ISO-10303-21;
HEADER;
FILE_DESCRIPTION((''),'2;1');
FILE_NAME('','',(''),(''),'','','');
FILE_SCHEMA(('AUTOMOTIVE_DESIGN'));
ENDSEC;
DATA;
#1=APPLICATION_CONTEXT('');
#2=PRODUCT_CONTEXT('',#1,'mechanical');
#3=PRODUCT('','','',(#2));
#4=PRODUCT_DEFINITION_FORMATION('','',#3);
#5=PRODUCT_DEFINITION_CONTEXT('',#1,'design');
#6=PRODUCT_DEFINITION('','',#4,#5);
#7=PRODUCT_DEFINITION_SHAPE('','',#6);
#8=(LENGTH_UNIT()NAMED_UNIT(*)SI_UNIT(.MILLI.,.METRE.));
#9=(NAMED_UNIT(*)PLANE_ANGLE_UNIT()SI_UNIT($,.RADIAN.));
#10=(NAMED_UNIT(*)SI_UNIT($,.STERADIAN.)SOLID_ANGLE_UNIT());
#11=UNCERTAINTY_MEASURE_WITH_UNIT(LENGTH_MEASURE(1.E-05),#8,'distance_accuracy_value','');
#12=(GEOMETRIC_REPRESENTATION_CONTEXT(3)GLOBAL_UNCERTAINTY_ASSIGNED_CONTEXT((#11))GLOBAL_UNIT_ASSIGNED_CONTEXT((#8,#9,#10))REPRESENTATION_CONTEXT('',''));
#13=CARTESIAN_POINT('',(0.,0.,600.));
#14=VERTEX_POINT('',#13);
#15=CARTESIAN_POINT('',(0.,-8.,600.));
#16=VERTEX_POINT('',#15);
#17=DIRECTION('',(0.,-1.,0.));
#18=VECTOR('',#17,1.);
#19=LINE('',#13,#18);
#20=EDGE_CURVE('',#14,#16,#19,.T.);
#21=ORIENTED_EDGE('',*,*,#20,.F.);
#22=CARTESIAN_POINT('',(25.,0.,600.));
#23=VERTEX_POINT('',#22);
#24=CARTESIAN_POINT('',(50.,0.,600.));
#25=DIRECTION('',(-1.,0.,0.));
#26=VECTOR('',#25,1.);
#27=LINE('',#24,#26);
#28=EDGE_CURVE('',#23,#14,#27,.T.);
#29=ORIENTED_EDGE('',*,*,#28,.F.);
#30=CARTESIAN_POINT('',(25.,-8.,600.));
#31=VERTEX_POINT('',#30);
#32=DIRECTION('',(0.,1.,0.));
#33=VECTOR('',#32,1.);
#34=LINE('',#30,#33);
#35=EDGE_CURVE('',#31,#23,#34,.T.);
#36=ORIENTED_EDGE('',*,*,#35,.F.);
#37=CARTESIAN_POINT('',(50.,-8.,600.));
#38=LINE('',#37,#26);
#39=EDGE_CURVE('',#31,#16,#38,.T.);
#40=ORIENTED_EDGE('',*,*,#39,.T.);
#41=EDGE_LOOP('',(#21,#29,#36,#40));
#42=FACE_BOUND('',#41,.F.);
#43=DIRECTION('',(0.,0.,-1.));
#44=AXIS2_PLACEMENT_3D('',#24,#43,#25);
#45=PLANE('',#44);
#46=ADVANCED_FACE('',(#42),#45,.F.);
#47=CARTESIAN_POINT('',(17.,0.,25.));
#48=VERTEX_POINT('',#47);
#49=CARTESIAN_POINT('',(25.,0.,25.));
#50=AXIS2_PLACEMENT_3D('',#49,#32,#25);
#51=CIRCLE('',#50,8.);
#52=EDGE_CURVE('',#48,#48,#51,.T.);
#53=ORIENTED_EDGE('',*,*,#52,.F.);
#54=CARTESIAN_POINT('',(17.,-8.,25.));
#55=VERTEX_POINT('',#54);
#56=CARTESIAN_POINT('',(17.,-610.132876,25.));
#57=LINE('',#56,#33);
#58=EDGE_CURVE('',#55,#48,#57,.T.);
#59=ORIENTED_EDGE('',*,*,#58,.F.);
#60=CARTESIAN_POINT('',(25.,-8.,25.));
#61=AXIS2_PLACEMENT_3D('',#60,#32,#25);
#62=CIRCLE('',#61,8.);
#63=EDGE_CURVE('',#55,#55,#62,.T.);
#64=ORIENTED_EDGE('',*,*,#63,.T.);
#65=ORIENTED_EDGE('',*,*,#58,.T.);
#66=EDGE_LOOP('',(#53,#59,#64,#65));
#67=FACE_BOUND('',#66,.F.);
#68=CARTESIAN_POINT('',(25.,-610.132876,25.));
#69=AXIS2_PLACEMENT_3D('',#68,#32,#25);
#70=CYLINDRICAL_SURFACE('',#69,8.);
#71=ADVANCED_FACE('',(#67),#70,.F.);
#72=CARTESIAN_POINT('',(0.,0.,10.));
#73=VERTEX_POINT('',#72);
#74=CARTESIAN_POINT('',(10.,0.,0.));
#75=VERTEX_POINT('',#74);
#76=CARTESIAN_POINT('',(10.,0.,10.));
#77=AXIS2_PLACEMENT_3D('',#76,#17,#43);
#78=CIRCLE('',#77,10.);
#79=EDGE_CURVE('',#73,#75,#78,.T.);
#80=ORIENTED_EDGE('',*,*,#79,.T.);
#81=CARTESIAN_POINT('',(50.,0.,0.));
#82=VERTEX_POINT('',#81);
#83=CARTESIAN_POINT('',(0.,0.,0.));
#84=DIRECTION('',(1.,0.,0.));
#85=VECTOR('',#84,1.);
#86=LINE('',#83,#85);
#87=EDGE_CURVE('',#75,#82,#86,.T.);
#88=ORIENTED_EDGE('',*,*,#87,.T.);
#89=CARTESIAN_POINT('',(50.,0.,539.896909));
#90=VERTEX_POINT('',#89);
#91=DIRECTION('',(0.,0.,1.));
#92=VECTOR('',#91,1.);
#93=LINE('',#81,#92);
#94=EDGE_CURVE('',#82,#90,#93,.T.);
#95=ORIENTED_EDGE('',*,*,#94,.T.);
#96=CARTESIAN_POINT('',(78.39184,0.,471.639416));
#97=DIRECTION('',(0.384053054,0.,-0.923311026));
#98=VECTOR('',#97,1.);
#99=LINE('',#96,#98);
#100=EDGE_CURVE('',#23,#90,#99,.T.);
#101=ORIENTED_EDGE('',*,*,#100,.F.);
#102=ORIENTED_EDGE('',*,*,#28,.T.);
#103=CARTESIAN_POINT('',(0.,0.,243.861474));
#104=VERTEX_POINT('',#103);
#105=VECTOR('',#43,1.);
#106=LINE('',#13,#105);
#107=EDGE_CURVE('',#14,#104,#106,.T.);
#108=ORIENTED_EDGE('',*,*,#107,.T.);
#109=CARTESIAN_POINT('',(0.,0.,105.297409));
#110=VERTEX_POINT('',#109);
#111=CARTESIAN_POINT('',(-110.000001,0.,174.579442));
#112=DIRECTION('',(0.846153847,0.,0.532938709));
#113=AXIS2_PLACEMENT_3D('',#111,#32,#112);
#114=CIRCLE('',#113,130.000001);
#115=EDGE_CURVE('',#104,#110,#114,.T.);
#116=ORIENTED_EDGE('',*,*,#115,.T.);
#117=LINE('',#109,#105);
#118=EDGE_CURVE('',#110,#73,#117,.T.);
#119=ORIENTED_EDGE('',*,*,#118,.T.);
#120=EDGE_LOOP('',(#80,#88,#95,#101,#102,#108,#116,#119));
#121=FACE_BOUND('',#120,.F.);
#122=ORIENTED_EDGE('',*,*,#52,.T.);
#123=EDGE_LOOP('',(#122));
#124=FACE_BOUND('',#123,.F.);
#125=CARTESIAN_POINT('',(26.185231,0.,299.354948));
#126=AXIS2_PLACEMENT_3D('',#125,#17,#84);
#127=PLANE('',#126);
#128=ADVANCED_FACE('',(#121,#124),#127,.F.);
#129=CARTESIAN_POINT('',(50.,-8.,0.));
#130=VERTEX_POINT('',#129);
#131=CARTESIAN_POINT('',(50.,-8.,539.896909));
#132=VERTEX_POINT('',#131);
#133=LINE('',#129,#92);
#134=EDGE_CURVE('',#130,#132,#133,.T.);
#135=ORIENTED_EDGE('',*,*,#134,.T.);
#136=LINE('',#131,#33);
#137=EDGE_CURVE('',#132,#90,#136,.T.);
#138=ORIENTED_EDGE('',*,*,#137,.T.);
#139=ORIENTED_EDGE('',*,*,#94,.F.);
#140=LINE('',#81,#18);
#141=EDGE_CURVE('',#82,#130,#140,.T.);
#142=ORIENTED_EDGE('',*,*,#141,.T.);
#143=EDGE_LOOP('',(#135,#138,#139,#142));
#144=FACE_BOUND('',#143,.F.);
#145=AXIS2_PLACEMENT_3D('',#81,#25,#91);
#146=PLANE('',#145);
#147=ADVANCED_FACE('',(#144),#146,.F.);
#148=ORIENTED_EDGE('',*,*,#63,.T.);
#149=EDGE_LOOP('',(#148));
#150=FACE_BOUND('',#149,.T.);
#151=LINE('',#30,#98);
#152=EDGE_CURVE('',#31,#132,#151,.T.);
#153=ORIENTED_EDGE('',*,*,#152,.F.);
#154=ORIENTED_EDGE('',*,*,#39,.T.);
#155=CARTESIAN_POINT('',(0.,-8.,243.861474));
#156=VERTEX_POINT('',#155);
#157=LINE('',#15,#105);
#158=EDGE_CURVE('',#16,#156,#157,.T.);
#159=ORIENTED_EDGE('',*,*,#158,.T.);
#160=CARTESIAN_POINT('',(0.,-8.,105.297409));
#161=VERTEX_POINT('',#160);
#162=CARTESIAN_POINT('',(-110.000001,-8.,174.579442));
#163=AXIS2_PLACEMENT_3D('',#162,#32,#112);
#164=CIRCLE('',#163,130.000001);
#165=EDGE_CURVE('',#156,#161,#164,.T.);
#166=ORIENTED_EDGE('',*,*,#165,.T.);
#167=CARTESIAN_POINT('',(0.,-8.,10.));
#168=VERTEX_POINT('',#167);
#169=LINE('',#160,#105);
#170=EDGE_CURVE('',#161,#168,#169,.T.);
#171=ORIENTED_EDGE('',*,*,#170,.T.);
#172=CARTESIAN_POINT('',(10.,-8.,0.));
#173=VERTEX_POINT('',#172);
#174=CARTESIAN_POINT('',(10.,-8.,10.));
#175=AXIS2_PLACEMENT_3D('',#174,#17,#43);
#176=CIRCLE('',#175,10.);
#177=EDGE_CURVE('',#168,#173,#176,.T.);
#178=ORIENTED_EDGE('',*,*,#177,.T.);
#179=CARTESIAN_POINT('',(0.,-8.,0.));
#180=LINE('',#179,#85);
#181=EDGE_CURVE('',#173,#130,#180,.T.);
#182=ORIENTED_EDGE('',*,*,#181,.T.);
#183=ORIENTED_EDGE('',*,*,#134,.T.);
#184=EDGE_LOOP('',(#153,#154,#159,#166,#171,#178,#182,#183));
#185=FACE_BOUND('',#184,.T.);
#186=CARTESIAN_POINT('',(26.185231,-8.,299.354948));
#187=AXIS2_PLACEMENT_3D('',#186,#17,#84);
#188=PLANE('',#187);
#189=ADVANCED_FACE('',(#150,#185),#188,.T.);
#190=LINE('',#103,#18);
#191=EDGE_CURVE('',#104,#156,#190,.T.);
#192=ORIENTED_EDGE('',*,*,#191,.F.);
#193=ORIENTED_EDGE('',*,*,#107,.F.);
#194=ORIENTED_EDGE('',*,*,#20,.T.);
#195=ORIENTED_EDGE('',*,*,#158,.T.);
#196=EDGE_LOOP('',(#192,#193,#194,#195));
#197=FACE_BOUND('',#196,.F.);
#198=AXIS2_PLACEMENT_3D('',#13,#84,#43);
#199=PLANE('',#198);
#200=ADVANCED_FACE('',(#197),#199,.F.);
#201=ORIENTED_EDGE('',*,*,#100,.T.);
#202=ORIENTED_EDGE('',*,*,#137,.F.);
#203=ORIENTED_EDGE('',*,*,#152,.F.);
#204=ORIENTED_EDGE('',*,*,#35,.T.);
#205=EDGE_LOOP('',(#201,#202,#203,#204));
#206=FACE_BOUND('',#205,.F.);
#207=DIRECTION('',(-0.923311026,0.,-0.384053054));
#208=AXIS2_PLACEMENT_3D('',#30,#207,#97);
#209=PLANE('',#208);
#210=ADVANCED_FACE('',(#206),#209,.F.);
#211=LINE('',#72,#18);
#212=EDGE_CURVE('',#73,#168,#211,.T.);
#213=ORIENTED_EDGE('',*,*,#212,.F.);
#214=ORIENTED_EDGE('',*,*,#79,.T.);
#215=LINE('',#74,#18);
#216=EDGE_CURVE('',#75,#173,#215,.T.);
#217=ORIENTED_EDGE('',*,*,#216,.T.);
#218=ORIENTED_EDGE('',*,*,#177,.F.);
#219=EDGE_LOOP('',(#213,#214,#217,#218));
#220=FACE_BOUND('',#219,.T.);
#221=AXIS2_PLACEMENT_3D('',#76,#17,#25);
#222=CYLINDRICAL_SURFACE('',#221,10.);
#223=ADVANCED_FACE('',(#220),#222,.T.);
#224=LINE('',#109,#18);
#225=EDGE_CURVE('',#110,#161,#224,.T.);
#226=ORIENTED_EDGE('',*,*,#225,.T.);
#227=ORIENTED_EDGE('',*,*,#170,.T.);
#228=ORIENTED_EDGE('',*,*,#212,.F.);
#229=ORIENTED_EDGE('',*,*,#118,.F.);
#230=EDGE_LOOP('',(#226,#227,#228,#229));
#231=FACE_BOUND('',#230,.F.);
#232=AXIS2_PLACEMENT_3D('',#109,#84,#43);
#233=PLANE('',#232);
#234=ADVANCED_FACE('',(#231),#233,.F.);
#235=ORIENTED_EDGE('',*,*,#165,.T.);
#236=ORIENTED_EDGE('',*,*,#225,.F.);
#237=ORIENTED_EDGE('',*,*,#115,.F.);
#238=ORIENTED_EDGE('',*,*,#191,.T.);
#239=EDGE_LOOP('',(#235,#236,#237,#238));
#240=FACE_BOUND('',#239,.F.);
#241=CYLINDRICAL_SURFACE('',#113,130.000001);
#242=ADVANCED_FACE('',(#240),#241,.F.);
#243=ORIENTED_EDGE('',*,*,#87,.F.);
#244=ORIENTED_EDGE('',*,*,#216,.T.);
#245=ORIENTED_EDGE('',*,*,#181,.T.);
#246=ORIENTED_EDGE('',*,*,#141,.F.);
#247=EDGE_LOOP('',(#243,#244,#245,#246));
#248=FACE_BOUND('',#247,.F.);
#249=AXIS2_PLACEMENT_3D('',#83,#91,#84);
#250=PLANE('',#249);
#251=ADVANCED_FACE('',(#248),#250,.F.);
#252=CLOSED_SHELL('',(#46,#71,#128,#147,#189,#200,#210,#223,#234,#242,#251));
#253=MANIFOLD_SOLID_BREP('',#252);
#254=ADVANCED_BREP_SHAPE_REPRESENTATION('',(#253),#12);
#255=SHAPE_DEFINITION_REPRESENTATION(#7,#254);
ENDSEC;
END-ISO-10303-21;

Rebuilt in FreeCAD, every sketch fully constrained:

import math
import FreeCAD as App
import Part
import Sketcher

V = App.Vector
Q = App.Units.Quantity


def edges_at(feature, points):
    """Names of the edges that pass closest to the given points."""
    edges = feature.Shape.Edges
    near = lambda p: min(range(len(edges)), key=lambda i: edges[i].distToShape(Part.Vertex(*p))[0])
    return sorted({f"Edge{near(p) + 1}" for p in points})

doc = App.newDocument("Part")
body = doc.addObject("PartDesign::Body", "Body")

sketch1 = body.newObject("Sketcher::SketchObject", "Sketch")
sketch1.AttachmentSupport = (doc.getObject("XZ_Plane"), [""])
sketch1.MapMode = "FlatFace"
sketch1.addGeometry(Part.LineSegment(V(0, 105, 0), V(0, 0, 0)), False)
sketch1.addGeometry(Part.LineSegment(V(0, 0, 0), V(50, 0, 0)), False)
sketch1.addGeometry(Part.LineSegment(V(50, 0, 0), V(50, 600, 0)), False)
sketch1.addGeometry(Part.LineSegment(V(50, 600, 0), V(0, 600, 0)), False)
sketch1.addGeometry(Part.LineSegment(V(0, 600, 0), V(0, 244, 0)), False)
sketch1.addGeometry(Part.ArcOfCircle(Part.Circle(V(-110, 175, 0), V(0, 0, 1), 130), math.radians(-32), math.radians(32)), False)
sketch1.addConstraint(Sketcher.Constraint("Coincident", 0, 2, 1, 1))
sketch1.addConstraint(Sketcher.Constraint("Coincident", 1, 2, 2, 1))
sketch1.addConstraint(Sketcher.Constraint("Coincident", 2, 2, 3, 1))
sketch1.addConstraint(Sketcher.Constraint("Coincident", 3, 2, 4, 1))
sketch1.addConstraint(Sketcher.Constraint("Coincident", 4, 2, 5, 2))
sketch1.addConstraint(Sketcher.Constraint("Coincident", 5, 1, 0, 1))
sketch1.addConstraint(Sketcher.Constraint("Vertical", 0))
sketch1.addConstraint(Sketcher.Constraint("Horizontal", 1))
sketch1.addConstraint(Sketcher.Constraint("Vertical", 2))
sketch1.addConstraint(Sketcher.Constraint("Horizontal", 3))
sketch1.addConstraint(Sketcher.Constraint("Vertical", 4))
sketch1.addConstraint(Sketcher.Constraint("Coincident", 0, 2, -1, 1))
sketch1.addConstraint(Sketcher.Constraint("PointOnObject", 3, 2, -2))
sketch1.addConstraint(Sketcher.Constraint("Radius", 5, Q("130.000001 mm")))
sketch1.addConstraint(Sketcher.Constraint("DistanceX", 1, 1, 1, 2, Q("50 mm")))
sketch1.addConstraint(Sketcher.Constraint("DistanceY", 2, 1, 2, 2, Q("600 mm")))
sketch1.addConstraint(Sketcher.Constraint("DistanceX", 5, 3, -1, 1, Q("110.000001 mm")))
sketch1.addConstraint(Sketcher.Constraint("DistanceY", 0, 2, 0, 1, Q("105.297409 mm")))
pad1 = body.newObject("PartDesign::Pad", "Pad")
pad1.Profile = sketch1
pad1.Length = 8

sketch2 = body.newObject("Sketcher::SketchObject", "Sketch001")
sketch2.AttachmentSupport = (doc.getObject("XZ_Plane"), [""])
sketch2.MapMode = "FlatFace"
sketch2.AttachmentOffset = App.Placement(V(0, 0, 8), App.Rotation())
sketch2.addGeometry(Part.Circle(V(25, 25, 0), V(0, 0, 1), 8), False)
sketch2.addConstraint(Sketcher.Constraint("Diameter", 0, Q("16 mm")))
sketch2.addConstraint(Sketcher.Constraint("DistanceX", -1, 1, 0, 3, Q("25 mm")))
sketch2.addConstraint(Sketcher.Constraint("DistanceY", -1, 1, 0, 3, Q("25 mm")))
doc.recompute()
hole = body.newObject("PartDesign::Hole", "Hole")
hole.Profile = sketch2
hole.ThreadType = "None"
hole.Diameter = 16
hole.DepthType = "ThroughAll"
doc.recompute()

fillet = body.newObject("PartDesign::Fillet", "Fillet")
fillet.Base = (hole, edges_at(hole, [(0, -4, 0)]))
fillet.Radius = 10

sketch3 = body.newObject("Sketcher::SketchObject", "Sketch002")
sketch3.AttachmentSupport = (doc.getObject("XZ_Plane"), [""])
sketch3.MapMode = "FlatFace"
sketch3.AttachmentOffset = App.Placement(V(0, 0, 8), App.Rotation())
sketch3.addGeometry(Part.LineSegment(V(50, 600, 0), V(25, 600, 0)), False)
sketch3.addGeometry(Part.LineSegment(V(25, 600, 0), V(50, 540, 0)), False)
sketch3.addGeometry(Part.LineSegment(V(50, 540, 0), V(50, 600, 0)), False)
sketch3.addConstraint(Sketcher.Constraint("Coincident", 0, 2, 1, 1))
sketch3.addConstraint(Sketcher.Constraint("Coincident", 1, 2, 2, 1))
sketch3.addConstraint(Sketcher.Constraint("Coincident", 2, 2, 0, 1))
sketch3.addConstraint(Sketcher.Constraint("Horizontal", 0))
sketch3.addConstraint(Sketcher.Constraint("Vertical", 2))
sketch3.addConstraint(Sketcher.Constraint("DistanceX", 0, 2, 0, 1, Q("25 mm")))
sketch3.addConstraint(Sketcher.Constraint("DistanceX", -1, 1, 0, 2, Q("25 mm")))
sketch3.addConstraint(Sketcher.Constraint("DistanceY", -1, 1, 0, 2, Q("600 mm")))
sketch3.addConstraint(Sketcher.Constraint("DistanceY", 2, 1, 2, 2, Q("60.103091 mm")))
pocket1 = body.newObject("PartDesign::Pocket", "Pocket")
pocket1.Profile = sketch3
pocket1.Length = 25

doc.recompute()
